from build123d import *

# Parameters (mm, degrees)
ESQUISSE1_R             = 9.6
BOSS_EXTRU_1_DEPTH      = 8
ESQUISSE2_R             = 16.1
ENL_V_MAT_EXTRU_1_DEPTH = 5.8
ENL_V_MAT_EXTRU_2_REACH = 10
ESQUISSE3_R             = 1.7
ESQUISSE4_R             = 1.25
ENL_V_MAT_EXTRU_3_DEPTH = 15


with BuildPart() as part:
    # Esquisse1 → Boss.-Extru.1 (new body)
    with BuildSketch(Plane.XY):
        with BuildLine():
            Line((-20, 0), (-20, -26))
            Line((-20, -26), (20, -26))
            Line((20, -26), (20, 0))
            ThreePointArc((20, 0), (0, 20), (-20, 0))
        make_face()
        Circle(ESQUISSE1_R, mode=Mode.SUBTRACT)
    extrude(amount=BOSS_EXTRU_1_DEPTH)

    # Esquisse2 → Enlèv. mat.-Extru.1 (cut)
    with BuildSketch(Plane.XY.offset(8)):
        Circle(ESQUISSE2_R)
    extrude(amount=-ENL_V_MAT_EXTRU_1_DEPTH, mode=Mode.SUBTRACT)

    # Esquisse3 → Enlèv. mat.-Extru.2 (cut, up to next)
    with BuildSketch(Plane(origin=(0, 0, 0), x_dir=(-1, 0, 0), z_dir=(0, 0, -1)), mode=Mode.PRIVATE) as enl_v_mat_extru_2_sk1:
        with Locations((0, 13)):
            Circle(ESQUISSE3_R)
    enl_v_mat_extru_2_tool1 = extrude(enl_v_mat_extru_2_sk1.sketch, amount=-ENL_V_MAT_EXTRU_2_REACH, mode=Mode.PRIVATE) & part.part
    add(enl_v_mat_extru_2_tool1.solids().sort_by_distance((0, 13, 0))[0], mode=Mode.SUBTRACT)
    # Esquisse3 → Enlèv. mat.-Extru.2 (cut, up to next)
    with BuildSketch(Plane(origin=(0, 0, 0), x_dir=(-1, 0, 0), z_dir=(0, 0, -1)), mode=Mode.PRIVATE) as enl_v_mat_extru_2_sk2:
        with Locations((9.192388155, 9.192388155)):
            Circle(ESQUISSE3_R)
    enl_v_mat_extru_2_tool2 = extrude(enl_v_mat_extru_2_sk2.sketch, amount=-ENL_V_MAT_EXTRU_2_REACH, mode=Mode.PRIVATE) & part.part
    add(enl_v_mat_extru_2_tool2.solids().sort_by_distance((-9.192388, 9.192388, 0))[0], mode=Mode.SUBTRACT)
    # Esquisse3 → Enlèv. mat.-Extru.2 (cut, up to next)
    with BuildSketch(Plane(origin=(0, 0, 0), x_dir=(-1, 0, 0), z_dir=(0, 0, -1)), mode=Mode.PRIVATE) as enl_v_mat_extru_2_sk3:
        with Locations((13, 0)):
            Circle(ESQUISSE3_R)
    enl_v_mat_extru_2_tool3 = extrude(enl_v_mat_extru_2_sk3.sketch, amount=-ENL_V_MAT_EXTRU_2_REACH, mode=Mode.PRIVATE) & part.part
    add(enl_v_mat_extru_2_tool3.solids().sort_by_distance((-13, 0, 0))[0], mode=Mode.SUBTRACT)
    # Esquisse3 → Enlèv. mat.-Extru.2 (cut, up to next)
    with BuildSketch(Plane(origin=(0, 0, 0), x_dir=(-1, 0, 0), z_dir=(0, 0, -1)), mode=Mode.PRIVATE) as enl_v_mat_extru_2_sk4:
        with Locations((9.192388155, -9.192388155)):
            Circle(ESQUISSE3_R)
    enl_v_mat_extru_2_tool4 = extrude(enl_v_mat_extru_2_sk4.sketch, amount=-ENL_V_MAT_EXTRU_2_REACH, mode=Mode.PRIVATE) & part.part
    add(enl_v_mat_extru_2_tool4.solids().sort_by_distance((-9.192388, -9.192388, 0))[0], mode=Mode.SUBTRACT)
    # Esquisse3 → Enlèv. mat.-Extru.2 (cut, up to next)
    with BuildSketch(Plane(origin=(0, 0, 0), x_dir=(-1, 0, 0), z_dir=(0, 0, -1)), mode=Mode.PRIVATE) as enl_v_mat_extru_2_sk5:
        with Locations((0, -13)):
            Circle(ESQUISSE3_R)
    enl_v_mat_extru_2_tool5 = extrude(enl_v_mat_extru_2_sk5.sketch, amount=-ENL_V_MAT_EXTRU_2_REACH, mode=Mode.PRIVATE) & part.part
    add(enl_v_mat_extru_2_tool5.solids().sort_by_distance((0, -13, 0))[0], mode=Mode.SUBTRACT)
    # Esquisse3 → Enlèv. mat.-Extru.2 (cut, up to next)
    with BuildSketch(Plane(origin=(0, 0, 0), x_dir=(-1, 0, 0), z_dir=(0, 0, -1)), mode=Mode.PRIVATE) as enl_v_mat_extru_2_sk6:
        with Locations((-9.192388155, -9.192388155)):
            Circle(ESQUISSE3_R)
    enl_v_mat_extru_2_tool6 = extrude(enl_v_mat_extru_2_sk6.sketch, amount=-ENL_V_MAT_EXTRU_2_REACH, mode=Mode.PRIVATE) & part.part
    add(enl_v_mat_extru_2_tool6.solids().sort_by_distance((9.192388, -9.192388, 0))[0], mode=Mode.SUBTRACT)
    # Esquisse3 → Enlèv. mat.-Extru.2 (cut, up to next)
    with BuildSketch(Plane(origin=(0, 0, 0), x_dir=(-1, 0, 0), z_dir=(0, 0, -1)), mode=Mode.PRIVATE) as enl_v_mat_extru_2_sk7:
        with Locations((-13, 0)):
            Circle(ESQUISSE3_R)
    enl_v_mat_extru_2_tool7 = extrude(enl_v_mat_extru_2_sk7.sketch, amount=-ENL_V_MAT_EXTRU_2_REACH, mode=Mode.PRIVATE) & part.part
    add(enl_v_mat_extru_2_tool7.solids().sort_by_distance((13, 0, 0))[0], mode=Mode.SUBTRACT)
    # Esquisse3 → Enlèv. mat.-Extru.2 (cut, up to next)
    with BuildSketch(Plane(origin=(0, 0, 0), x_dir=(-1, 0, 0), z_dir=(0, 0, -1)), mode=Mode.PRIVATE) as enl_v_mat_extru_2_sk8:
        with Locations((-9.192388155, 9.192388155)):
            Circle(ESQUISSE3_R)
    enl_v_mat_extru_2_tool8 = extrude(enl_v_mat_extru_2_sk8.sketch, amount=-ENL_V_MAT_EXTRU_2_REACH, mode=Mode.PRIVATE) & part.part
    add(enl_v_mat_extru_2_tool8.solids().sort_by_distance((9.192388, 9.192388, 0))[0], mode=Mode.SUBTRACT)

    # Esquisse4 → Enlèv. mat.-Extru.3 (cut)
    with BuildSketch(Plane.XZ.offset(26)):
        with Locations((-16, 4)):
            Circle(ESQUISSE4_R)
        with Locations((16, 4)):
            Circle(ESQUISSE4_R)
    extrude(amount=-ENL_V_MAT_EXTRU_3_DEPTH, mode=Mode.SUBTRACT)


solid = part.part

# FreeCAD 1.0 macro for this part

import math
import FreeCAD as App
import Part
import Sketcher
Q = App.Units.Quantity

doc = App.newDocument("Part")
params = doc.addObject("Spreadsheet::Sheet", "Params")
for row, (alias, value) in enumerate([
    ("sketch1_radius", "20 mm"),
    ("sketch1_diameter", "19.2 mm"),
    ("sketch1_height", "26 mm"),
    ("pad1_length", "8 mm"),
    ("sketch2_diameter", "32.2 mm"),
    ("pocket1_length", "5.8 mm"),
    ("sketch3_diameter", "3.4 mm"),
    ("sketch4_diameter", "3.4 mm"),
    ("sketch5_diameter", "3.4 mm"),
    ("sketch6_diameter", "3.4 mm"),
    ("sketch7_diameter", "3.4 mm"),
    ("sketch8_diameter", "3.4 mm"),
    ("sketch9_diameter", "3.4 mm"),
    ("sketch10_diameter", "3.4 mm"),
    ("sketch11_diameter", "2.5 mm"),
    ("pocket10_length", "15 mm"),
], start=1):
    params.set(f"A{row}", alias)
    params.set(f"B{row}", "=" + value)
    params.setAlias(f"B{row}", alias)

body = doc.addObject("PartDesign::Body", "Body")

# Sketch on XY plane
sketch1 = body.newObject("Sketcher::SketchObject", "Sketch")
sketch1.AttachmentSupport = (doc.getObject("XY_Plane"), [""])
sketch1.MapMode = "FlatFace"
sketch1.addGeometry([
    Part.LineSegment(App.Vector(-20, 0, 0), App.Vector(-20, -26, 0)),  # 0
    Part.LineSegment(App.Vector(-20, -26, 0), App.Vector(20, -26, 0)),  # 1
    Part.LineSegment(App.Vector(20, -26, 0), App.Vector(20, 0, 0)),  # 2
    Part.ArcOfCircle(Part.Circle(App.Vector(0, 0, 0), App.Vector(0, 0, 1), 20), math.radians(0), math.radians(180)),  # 3
    Part.Circle(App.Vector(0, 0, 0), App.Vector(0, 0, 1), 9.6),  # 4
], False)
sketch1.addConstraint([
    Sketcher.Constraint("Coincident", 0, 2, 1, 1),
    Sketcher.Constraint("Coincident", 1, 2, 2, 1),
    Sketcher.Constraint("Tangent", 2, 2, 3, 1),
    Sketcher.Constraint("Tangent", 3, 2, 0, 1),
    Sketcher.Constraint("Vertical", 0),
    Sketcher.Constraint("Horizontal", 1),
    Sketcher.Constraint("Vertical", 2),
    Sketcher.Constraint("Coincident", 3, 3, -1, 1),
    Sketcher.Constraint("Coincident", 4, 3, -1, 1),
    Sketcher.Constraint("Radius", 3, Q("20 mm")),
    Sketcher.Constraint("Diameter", 4, Q("19.2 mm")),
    Sketcher.Constraint("DistanceY", 0, 2, 0, 1, Q("26 mm")),
])
sketch1.setExpression("Constraints[9]", "Params.sketch1_radius")
sketch1.setExpression("Constraints[10]", "Params.sketch1_diameter")
sketch1.setExpression("Constraints[11]", "Params.sketch1_height")
pad1 = body.newObject("PartDesign::Pad", "Pad")
pad1.Profile = sketch1
pad1.setExpression("Length", "Params.pad1_length")

# Sketch on XY plane
sketch2 = body.newObject("Sketcher::SketchObject", "Sketch001")
sketch2.AttachmentSupport = (doc.getObject("XY_Plane"), [""])
sketch2.MapMode = "FlatFace"
sketch2.AttachmentOffset = App.Placement(App.Vector(0, 0, 8), App.Rotation())
sketch2.addGeometry(Part.Circle(App.Vector(0, 0, 0), App.Vector(0, 0, 1), 16.1), False)
sketch2.addConstraint([
    Sketcher.Constraint("Coincident", 0, 3, -1, 1),
    Sketcher.Constraint("Diameter", 0, Q("32.2 mm")),
])
sketch2.setExpression("Constraints[1]", "Params.sketch2_diameter")
pocket1 = body.newObject("PartDesign::Pocket", "Pocket")
pocket1.Profile = sketch2
pocket1.setExpression("Length", "Params.pocket1_length")

# Sketch on XY plane
sketch3 = body.newObject("Sketcher::SketchObject", "Sketch002")
sketch3.AttachmentSupport = (doc.getObject("XY_Plane"), [""])
sketch3.MapMode = "FlatFace"
sketch3.addGeometry(Part.Circle(App.Vector(0, 13, 0), App.Vector(0, 0, 1), 1.7), False)
sketch3.addConstraint([
    Sketcher.Constraint("PointOnObject", 0, 3, -2),
    Sketcher.Constraint("Diameter", 0, Q("3.4 mm")),
    Sketcher.Constraint("DistanceY", -1, 1, 0, 3, Q("13 mm")),
])
sketch3.setExpression("Constraints[1]", "Params.sketch3_diameter")
pocket2 = body.newObject("PartDesign::Pocket", "Pocket001")
pocket2.Profile = sketch3
pocket2.Type = "UpToFirst"
pocket2.Reversed = True

# Sketch on XY plane
sketch4 = body.newObject("Sketcher::SketchObject", "Sketch003")
sketch4.AttachmentSupport = (doc.getObject("XY_Plane"), [""])
sketch4.MapMode = "FlatFace"
sketch4.addGeometry(Part.Circle(App.Vector(-9.192388, 9.192388, 0), App.Vector(0, 0, 1), 1.7), False)
sketch4.addConstraint([
    Sketcher.Constraint("Diameter", 0, Q("3.4 mm")),
    Sketcher.Constraint("DistanceX", 0, 3, -1, 1, Q("9.192388 mm")),
    Sketcher.Constraint("DistanceY", -1, 1, 0, 3, Q("9.192388 mm")),
])
sketch4.setExpression("Constraints[0]", "Params.sketch4_diameter")
pocket3 = body.newObject("PartDesign::Pocket", "Pocket002")
pocket3.Profile = sketch4
pocket3.Type = "UpToFirst"
pocket3.Reversed = True

# Sketch on XY plane
sketch5 = body.newObject("Sketcher::SketchObject", "Sketch004")
sketch5.AttachmentSupport = (doc.getObject("XY_Plane"), [""])
sketch5.MapMode = "FlatFace"
sketch5.addGeometry(Part.Circle(App.Vector(-13, 0, 0), App.Vector(0, 0, 1), 1.7), False)
sketch5.addConstraint([
    Sketcher.Constraint("PointOnObject", 0, 3, -1),
    Sketcher.Constraint("Diameter", 0, Q("3.4 mm")),
    Sketcher.Constraint("DistanceX", 0, 3, -1, 1, Q("13 mm")),
])
sketch5.setExpression("Constraints[1]", "Params.sketch5_diameter")
pocket4 = body.newObject("PartDesign::Pocket", "Pocket003")
pocket4.Profile = sketch5
pocket4.Type = "UpToFirst"
pocket4.Reversed = True

# Sketch on XY plane
sketch6 = body.newObject("Sketcher::SketchObject", "Sketch005")
sketch6.AttachmentSupport = (doc.getObject("XY_Plane"), [""])
sketch6.MapMode = "FlatFace"
sketch6.addGeometry(Part.Circle(App.Vector(-9.192388, -9.192388, 0), App.Vector(0, 0, 1), 1.7), False)
sketch6.addConstraint([
    Sketcher.Constraint("Diameter", 0, Q("3.4 mm")),
    Sketcher.Constraint("DistanceX", 0, 3, -1, 1, Q("9.192388 mm")),
    Sketcher.Constraint("DistanceY", 0, 3, -1, 1, Q("9.192388 mm")),
])
sketch6.setExpression("Constraints[0]", "Params.sketch6_diameter")
pocket5 = body.newObject("PartDesign::Pocket", "Pocket004")
pocket5.Profile = sketch6
pocket5.Type = "UpToFirst"
pocket5.Reversed = True

# Sketch on XY plane
sketch7 = body.newObject("Sketcher::SketchObject", "Sketch006")
sketch7.AttachmentSupport = (doc.getObject("XY_Plane"), [""])
sketch7.MapMode = "FlatFace"
sketch7.addGeometry(Part.Circle(App.Vector(0, -13, 0), App.Vector(0, 0, 1), 1.7), False)
sketch7.addConstraint([
    Sketcher.Constraint("PointOnObject", 0, 3, -2),
    Sketcher.Constraint("Diameter", 0, Q("3.4 mm")),
    Sketcher.Constraint("DistanceY", 0, 3, -1, 1, Q("13 mm")),
])
sketch7.setExpression("Constraints[1]", "Params.sketch7_diameter")
pocket6 = body.newObject("PartDesign::Pocket", "Pocket005")
pocket6.Profile = sketch7
pocket6.Type = "UpToFirst"
pocket6.Reversed = True

# Sketch on XY plane
sketch8 = body.newObject("Sketcher::SketchObject", "Sketch007")
sketch8.AttachmentSupport = (doc.getObject("XY_Plane"), [""])
sketch8.MapMode = "FlatFace"
sketch8.addGeometry(Part.Circle(App.Vector(9.192388, -9.192388, 0), App.Vector(0, 0, 1), 1.7), False)
sketch8.addConstraint([
    Sketcher.Constraint("Diameter", 0, Q("3.4 mm")),
    Sketcher.Constraint("DistanceX", -1, 1, 0, 3, Q("9.192388 mm")),
    Sketcher.Constraint("DistanceY", 0, 3, -1, 1, Q("9.192388 mm")),
])
sketch8.setExpression("Constraints[0]", "Params.sketch8_diameter")
pocket7 = body.newObject("PartDesign::Pocket", "Pocket006")
pocket7.Profile = sketch8
pocket7.Type = "UpToFirst"
pocket7.Reversed = True

# Sketch on XY plane
sketch9 = body.newObject("Sketcher::SketchObject", "Sketch008")
sketch9.AttachmentSupport = (doc.getObject("XY_Plane"), [""])
sketch9.MapMode = "FlatFace"
sketch9.addGeometry(Part.Circle(App.Vector(13, 0, 0), App.Vector(0, 0, 1), 1.7), False)
sketch9.addConstraint([
    Sketcher.Constraint("PointOnObject", 0, 3, -1),
    Sketcher.Constraint("Diameter", 0, Q("3.4 mm")),
    Sketcher.Constraint("DistanceX", -1, 1, 0, 3, Q("13 mm")),
])
sketch9.setExpression("Constraints[1]", "Params.sketch9_diameter")
pocket8 = body.newObject("PartDesign::Pocket", "Pocket007")
pocket8.Profile = sketch9
pocket8.Type = "UpToFirst"
pocket8.Reversed = True

# Sketch on XY plane
sketch10 = body.newObject("Sketcher::SketchObject", "Sketch009")
sketch10.AttachmentSupport = (doc.getObject("XY_Plane"), [""])
sketch10.MapMode = "FlatFace"
sketch10.addGeometry(Part.Circle(App.Vector(9.192388, 9.192388, 0), App.Vector(0, 0, 1), 1.7), False)
sketch10.addConstraint([
    Sketcher.Constraint("Diameter", 0, Q("3.4 mm")),
    Sketcher.Constraint("DistanceX", -1, 1, 0, 3, Q("9.192388 mm")),
    Sketcher.Constraint("DistanceY", -1, 1, 0, 3, Q("9.192388 mm")),
])
sketch10.setExpression("Constraints[0]", "Params.sketch10_diameter")
pocket9 = body.newObject("PartDesign::Pocket", "Pocket008")
pocket9.Profile = sketch10
pocket9.Type = "UpToFirst"
pocket9.Reversed = True

# Sketch on XZ plane
sketch11 = body.newObject("Sketcher::SketchObject", "Sketch010")
sketch11.AttachmentSupport = (doc.getObject("XZ_Plane"), [""])
sketch11.MapMode = "FlatFace"
sketch11.AttachmentOffset = App.Placement(App.Vector(0, 0, 26), App.Rotation())
sketch11.addGeometry([
    Part.Circle(App.Vector(-16, 4, 0), App.Vector(0, 0, 1), 1.25),
    Part.Circle(App.Vector(16, 4, 0), App.Vector(0, 0, 1), 1.25),
], False)
sketch11.addConstraint([
    Sketcher.Constraint("Equal", 0, 1),
    Sketcher.Constraint("Symmetric", 0, 3, 1, 3, -2),
    Sketcher.Constraint("Diameter", 0, Q("2.5 mm")),
    Sketcher.Constraint("DistanceX", 0, 3, -1, 1, Q("16 mm")),
    Sketcher.Constraint("DistanceY", -1, 1, 0, 3, Q("4 mm")),
])
sketch11.setExpression("Constraints[2]", "Params.sketch11_diameter")
pocket10 = body.newObject("PartDesign::Pocket", "Pocket009")
pocket10.Profile = sketch11
pocket10.setExpression("Length", "Params.pocket10_length")

doc.recompute()
